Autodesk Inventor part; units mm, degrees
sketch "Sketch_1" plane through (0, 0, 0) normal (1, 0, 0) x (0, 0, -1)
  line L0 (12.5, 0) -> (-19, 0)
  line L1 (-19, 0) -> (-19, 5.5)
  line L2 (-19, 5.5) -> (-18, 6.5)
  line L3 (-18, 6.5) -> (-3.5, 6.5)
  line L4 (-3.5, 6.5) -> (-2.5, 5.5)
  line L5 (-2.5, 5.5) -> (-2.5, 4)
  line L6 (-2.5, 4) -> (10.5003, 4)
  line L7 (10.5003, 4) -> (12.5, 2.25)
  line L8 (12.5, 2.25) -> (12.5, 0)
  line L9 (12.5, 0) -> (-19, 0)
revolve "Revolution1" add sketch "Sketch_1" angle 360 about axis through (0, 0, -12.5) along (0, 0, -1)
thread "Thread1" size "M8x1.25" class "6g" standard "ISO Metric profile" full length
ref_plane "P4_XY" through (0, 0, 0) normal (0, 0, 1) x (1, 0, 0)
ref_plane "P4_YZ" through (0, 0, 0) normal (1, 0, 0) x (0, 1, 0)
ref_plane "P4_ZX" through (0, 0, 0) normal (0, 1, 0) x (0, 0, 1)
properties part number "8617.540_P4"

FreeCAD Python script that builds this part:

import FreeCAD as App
import Part
import Sketcher

V = App.Vector
Q = App.Units.Quantity

doc = App.newDocument("Part")
params = doc.addObject("Spreadsheet::Sheet", "Params")
for row, (alias, value) in enumerate([
    ("sketch1_width", "1.5 mm"),
    ("sketch1_width2", "5.5 mm"),
    ("sketch1_height", "31.5 mm"),
    ("sketch1_height2", "14.5 mm"),
    ("sketch1_width3", "2.25 mm"),
    ("revolution_angle", "360 deg"),
], start=1):
    params.set(f"A{row}", alias)
    params.set(f"B{row}", "=" + value)
    params.setAlias(f"B{row}", alias)

body = doc.addObject("PartDesign::Body", "Body")

# Sketch on YZ plane
sketch1 = body.newObject("Sketcher::SketchObject", "Sketch")
sketch1.AttachmentSupport = (doc.getObject("YZ_Plane"), [""])
sketch1.MapMode = "FlatFace"
sketch1.addGeometry(Part.LineSegment(V(0, 19, 0), V(0, -12.5, 0)), False)
sketch1.addGeometry(Part.LineSegment(V(0, -12.5, 0), V(2.2, -12.5, 0)), False)
sketch1.addGeometry(Part.LineSegment(V(2.2, -12.5, 0), V(4, -10.5, 0)), False)
sketch1.addGeometry(Part.LineSegment(V(4, -10.5, 0), V(4, 2.5, 0)), False)
sketch1.addGeometry(Part.LineSegment(V(4, 2.5, 0), V(5.5, 2.5, 0)), False)
sketch1.addGeometry(Part.LineSegment(V(5.5, 2.5, 0), V(6.5, 3.5, 0)), False)
sketch1.addGeometry(Part.LineSegment(V(6.5, 3.5, 0), V(6.5, 18, 0)), False)
sketch1.addGeometry(Part.LineSegment(V(6.5, 18, 0), V(5.5, 19, 0)), False)
sketch1.addGeometry(Part.LineSegment(V(5.5, 19, 0), V(0, 19, 0)), False)
sketch1.addConstraint(Sketcher.Constraint("Coincident", 0, 2, 1, 1))
sketch1.addConstraint(Sketcher.Constraint("Coincident", 1, 2, 2, 1))
sketch1.addConstraint(Sketcher.Constraint("Coincident", 2, 2, 3, 1))
sketch1.addConstraint(Sketcher.Constraint("Coincident", 3, 2, 4, 1))
sketch1.addConstraint(Sketcher.Constraint("Coincident", 4, 2, 5, 1))
sketch1.addConstraint(Sketcher.Constraint("Coincident", 5, 2, 6, 1))
sketch1.addConstraint(Sketcher.Constraint("Coincident", 6, 2, 7, 1))
sketch1.addConstraint(Sketcher.Constraint("Coincident", 7, 2, 8, 1))
sketch1.addConstraint(Sketcher.Constraint("Coincident", 8, 2, 0, 1))
sketch1.addConstraint(Sketcher.Constraint("Vertical", 0))
sketch1.addConstraint(Sketcher.Constraint("Horizontal", 1))
sketch1.addConstraint(Sketcher.Constraint("Vertical", 3))
sketch1.addConstraint(Sketcher.Constraint("Horizontal", 4))
sketch1.addConstraint(Sketcher.Constraint("Vertical", 6))
sketch1.addConstraint(Sketcher.Constraint("Horizontal", 8))
sketch1.addConstraint(Sketcher.Constraint("PointOnObject", 0, 2, -2))
sketch1.addConstraint(Sketcher.Constraint("Perpendicular", 5, 7))
sketch1.addConstraint(Sketcher.Constraint("Vertical", 4, 2, 7, 2))
sketch1.addConstraint(Sketcher.Constraint("Equal", 5, 7))
sketch1.addConstraint(Sketcher.Constraint("DistanceX", 4, 1, 4, 2, Q("1.5 mm")))
sketch1.addConstraint(Sketcher.Constraint("DistanceX", 8, 2, 8, 1, Q("5.5 mm")))
sketch1.addConstraint(Sketcher.Constraint("DistanceY", 0, 2, 0, 1, Q("31.5 mm")))
sketch1.addConstraint(Sketcher.Constraint("DistanceY", 6, 1, 6, 2, Q("14.5 mm")))
sketch1.addConstraint(Sketcher.Constraint("DistanceY", -1, 1, 6, 2, Q("18 mm")))
sketch1.addConstraint(Sketcher.Constraint("DistanceY", -1, 1, 7, 2, Q("19 mm")))
sketch1.addConstraint(Sketcher.Constraint("DistanceX", 1, 1, 1, 2, Q("2.25 mm")))
sketch1.addConstraint(Sketcher.Constraint("Angle", 2, Q("48.8098 deg")))
sketch1.setExpression("Constraints[19]", "Params.sketch1_width")
sketch1.setExpression("Constraints[20]", "Params.sketch1_width2")
sketch1.setExpression("Constraints[21]", "Params.sketch1_height")
sketch1.setExpression("Constraints[22]", "Params.sketch1_height2")
sketch1.setExpression("Constraints[25]", "Params.sketch1_width3")
revolution = body.newObject("PartDesign::Revolution", "Revolution")
revolution.Profile = sketch1
revolution.ReferenceAxis = (sketch1, ["V_Axis"])
revolution.setExpression("Angle", "Params.revolution_angle")

doc.recompute()
